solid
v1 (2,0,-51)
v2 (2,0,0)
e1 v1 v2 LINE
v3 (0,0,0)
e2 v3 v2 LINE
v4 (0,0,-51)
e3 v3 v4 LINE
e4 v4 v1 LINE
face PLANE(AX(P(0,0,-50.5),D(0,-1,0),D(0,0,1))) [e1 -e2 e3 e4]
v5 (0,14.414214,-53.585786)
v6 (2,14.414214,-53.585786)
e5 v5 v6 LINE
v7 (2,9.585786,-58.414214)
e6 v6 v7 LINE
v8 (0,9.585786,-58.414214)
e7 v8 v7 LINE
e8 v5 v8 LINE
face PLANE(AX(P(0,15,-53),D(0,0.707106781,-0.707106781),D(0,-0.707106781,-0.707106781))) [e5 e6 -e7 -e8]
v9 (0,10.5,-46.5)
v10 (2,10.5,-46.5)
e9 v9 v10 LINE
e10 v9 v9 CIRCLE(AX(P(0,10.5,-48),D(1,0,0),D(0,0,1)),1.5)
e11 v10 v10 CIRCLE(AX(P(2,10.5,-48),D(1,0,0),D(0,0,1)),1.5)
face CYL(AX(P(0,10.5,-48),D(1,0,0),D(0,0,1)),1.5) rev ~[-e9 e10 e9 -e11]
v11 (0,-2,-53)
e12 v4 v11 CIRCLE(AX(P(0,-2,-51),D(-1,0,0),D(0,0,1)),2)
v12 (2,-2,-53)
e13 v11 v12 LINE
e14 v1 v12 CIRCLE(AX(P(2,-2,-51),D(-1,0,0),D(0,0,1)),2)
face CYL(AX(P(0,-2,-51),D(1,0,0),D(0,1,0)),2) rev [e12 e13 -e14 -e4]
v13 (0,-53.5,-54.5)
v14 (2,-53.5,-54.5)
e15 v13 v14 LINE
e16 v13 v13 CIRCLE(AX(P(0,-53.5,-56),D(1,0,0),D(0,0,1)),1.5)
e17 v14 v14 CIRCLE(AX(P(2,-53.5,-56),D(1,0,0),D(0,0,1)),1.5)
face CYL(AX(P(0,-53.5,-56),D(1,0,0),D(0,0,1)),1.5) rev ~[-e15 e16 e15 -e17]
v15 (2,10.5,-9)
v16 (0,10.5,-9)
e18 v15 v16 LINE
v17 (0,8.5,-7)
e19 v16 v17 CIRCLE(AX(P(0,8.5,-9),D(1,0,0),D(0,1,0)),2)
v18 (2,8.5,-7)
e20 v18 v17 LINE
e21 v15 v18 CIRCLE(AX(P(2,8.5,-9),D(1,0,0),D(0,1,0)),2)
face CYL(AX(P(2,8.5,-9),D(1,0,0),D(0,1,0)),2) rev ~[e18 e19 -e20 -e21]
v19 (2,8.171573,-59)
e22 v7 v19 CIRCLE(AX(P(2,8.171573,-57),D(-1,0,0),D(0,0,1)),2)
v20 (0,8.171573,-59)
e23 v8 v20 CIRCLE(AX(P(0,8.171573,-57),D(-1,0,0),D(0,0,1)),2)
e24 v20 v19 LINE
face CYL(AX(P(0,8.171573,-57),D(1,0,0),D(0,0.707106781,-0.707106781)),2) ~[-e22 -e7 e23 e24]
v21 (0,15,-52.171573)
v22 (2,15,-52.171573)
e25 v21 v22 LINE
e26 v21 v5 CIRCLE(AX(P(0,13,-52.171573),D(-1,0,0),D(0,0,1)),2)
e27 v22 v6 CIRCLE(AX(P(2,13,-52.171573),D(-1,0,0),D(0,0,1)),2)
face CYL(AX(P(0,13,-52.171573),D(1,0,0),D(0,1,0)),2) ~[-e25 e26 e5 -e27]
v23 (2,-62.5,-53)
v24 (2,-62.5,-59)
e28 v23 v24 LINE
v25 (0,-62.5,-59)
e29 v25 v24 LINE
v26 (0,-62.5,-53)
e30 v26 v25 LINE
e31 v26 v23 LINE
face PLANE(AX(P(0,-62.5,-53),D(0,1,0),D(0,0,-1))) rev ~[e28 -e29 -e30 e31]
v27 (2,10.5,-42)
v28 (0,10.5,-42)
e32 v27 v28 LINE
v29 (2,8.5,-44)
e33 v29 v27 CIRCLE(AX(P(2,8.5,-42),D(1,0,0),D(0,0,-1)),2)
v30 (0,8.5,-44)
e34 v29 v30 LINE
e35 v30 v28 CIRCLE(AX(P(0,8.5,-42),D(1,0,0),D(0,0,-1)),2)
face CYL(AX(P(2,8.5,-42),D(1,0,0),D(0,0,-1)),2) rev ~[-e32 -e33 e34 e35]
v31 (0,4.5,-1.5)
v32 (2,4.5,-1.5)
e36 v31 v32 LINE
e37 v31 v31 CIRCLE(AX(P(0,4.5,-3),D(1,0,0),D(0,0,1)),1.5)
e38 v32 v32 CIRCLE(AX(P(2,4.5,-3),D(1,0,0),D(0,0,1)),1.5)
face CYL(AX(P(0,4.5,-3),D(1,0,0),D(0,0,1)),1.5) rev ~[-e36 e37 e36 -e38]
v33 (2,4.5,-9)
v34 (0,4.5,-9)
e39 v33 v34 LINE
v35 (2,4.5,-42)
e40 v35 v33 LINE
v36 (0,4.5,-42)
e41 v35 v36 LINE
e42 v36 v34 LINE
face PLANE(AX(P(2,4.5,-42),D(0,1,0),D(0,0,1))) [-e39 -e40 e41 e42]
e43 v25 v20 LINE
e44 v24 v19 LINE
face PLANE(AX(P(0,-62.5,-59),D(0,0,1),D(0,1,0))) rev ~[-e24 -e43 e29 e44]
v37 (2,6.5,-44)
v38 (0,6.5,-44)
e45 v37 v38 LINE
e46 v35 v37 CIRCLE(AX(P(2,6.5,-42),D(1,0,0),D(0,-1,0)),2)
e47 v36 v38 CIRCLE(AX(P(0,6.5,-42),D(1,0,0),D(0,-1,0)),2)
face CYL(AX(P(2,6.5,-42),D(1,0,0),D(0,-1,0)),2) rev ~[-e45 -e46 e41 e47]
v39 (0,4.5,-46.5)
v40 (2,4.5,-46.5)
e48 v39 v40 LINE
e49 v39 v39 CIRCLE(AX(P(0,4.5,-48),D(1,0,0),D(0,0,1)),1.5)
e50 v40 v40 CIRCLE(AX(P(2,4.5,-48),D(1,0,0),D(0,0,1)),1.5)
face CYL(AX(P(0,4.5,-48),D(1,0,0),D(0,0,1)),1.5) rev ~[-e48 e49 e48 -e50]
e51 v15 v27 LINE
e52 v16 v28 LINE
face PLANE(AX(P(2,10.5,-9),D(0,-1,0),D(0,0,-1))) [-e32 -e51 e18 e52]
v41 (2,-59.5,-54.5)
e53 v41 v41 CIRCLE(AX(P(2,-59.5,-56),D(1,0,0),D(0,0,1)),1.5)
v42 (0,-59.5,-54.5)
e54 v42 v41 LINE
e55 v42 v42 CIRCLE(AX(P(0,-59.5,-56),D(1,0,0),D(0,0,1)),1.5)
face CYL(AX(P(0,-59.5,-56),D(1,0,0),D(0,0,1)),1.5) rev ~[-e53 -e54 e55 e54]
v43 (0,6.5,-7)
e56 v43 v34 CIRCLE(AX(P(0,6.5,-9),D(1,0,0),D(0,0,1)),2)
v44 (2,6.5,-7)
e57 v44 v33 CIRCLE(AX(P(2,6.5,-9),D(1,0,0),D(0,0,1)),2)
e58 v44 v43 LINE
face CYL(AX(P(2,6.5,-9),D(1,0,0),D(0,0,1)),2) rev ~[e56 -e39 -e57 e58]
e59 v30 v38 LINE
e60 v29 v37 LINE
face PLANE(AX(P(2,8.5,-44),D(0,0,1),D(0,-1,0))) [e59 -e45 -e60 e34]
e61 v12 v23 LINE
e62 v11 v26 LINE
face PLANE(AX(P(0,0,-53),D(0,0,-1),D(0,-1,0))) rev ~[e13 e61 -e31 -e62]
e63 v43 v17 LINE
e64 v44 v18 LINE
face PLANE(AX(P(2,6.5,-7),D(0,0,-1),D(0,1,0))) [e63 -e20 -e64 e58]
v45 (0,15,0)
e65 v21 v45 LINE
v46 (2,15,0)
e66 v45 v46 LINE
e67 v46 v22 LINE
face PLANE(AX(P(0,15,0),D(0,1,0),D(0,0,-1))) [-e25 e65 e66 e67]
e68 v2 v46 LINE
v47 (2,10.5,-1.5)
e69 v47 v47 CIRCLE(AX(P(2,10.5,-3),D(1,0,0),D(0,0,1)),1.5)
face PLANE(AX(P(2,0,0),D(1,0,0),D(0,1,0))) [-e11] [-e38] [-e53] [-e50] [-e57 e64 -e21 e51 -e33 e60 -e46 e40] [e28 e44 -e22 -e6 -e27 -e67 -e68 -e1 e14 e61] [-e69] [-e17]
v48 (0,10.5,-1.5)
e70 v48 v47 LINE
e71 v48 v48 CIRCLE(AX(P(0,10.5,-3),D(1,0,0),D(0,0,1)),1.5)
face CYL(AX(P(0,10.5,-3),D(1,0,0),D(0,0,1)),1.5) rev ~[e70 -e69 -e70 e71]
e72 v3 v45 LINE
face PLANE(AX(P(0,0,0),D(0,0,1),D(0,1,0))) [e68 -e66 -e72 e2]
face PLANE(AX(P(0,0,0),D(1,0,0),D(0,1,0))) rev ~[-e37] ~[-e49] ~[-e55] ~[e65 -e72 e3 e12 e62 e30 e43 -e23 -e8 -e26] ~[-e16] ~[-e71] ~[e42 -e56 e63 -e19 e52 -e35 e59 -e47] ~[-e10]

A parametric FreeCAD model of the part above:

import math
import FreeCAD as App
import Part
import Sketcher

V = App.Vector
Q = App.Units.Quantity


def edges_at(feature, points):
    """Names of the edges that pass closest to the given points."""
    edges = feature.Shape.Edges
    near = lambda p: min(range(len(edges)), key=lambda i: edges[i].distToShape(Part.Vertex(*p))[0])
    return sorted({f"Edge{near(p) + 1}" for p in points})

doc = App.newDocument("Part")
body = doc.addObject("PartDesign::Body", "Body")

# Sketch on YZ plane
sketch1 = body.newObject("Sketcher::SketchObject", "Sketch")
sketch1.AttachmentSupport = (doc.getObject("YZ_Plane"), [""])
sketch1.MapMode = "FlatFace"
sketch1.addGeometry([
    Part.LineSegment(V(15, 0, 0), V(0, 0, 0)),  # 0
    Part.LineSegment(V(0, 0, 0), V(0, -53, 0)),  # 1
    Part.LineSegment(V(0, -53, 0), V(-62, -53, 0)),  # 2
    Part.LineSegment(V(-62, -53, 0), V(-62, -59, 0)),  # 3
    Part.LineSegment(V(-62, -59, 0), V(9, -59, 0)),  # 4
    Part.LineSegment(V(9, -59, 0), V(15, -53, 0)),  # 5
    Part.LineSegment(V(15, -53, 0), V(15, 0, 0)),  # 6
], False)
sketch1.addConstraint([
    Sketcher.Constraint("Coincident", 0, 2, 1, 1),
    Sketcher.Constraint("Coincident", 1, 2, 2, 1),
    Sketcher.Constraint("Coincident", 2, 2, 3, 1),
    Sketcher.Constraint("Coincident", 3, 2, 4, 1),
    Sketcher.Constraint("Coincident", 4, 2, 5, 1),
    Sketcher.Constraint("Coincident", 5, 2, 6, 1),
    Sketcher.Constraint("Coincident", 6, 2, 0, 1),
    Sketcher.Constraint("Horizontal", 0),
    Sketcher.Constraint("Vertical", 1),
    Sketcher.Constraint("Horizontal", 2),
    Sketcher.Constraint("Vertical", 3),
    Sketcher.Constraint("Horizontal", 4),
    Sketcher.Constraint("Vertical", 6),
    Sketcher.Constraint("Coincident", 0, 2, -1, 1),
    Sketcher.Constraint("Horizontal", 2, 2, 5, 2),
    Sketcher.Constraint("DistanceY", 1, 2, 1, 1, Q("53 mm")),
    Sketcher.Constraint("DistanceY", 3, 2, 3, 1, Q("6 mm")),
    Sketcher.Constraint("DistanceX", 4, 2, 5, 2, Q("6 mm")),
    Sketcher.Constraint("DistanceX", 0, 2, 0, 1, Q("15 mm")),
    Sketcher.Constraint("DistanceX", 2, 2, 2, 1, Q("62.5 mm")),
])
pad1 = body.newObject("PartDesign::Pad", "Pad")
pad1.Profile = sketch1
pad1.Length = 2

# Sketch on YZ plane
sketch2 = body.newObject("Sketcher::SketchObject", "Sketch001")
sketch2.AttachmentSupport = (doc.getObject("YZ_Plane"), [""])
sketch2.MapMode = "FlatFace"
sketch2.addGeometry([
    Part.Circle(V(10.5, -3, 0), V(0, 0, 1), 1.5),  # 0
    Part.Circle(V(4.5, -3, 0), V(0, 0, 1), 1.5),  # 1
    Part.Circle(V(10.5, -48, 0), V(0, 0, 1), 1.5),  # 2
    Part.Circle(V(4.5, -48, 0), V(0, 0, 1), 1.5),  # 3
    Part.Circle(V(-53.5, -56, 0), V(0, 0, 1), 1.5),  # 4
    Part.Circle(V(-59.5, -56, 0), V(0, 0, 1), 1.5),  # 5
], False)
sketch2.addConstraint([
    Sketcher.Constraint("Equal", 0, 1),
    Sketcher.Constraint("Equal", 1, 2),
    Sketcher.Constraint("Equal", 2, 3),
    Sketcher.Constraint("Equal", 3, 4),
    Sketcher.Constraint("Equal", 4, 5),
    Sketcher.Constraint("Horizontal", 0, 3, 1, 3),
    Sketcher.Constraint("Horizontal", 2, 3, 3, 3),
    Sketcher.Constraint("Horizontal", 4, 3, 5, 3),
    Sketcher.Constraint("Vertical", 0, 3, 2, 3),
    Sketcher.Constraint("Vertical", 1, 3, 3, 3),
    Sketcher.Constraint("Diameter", 0, Q("3 mm")),
    Sketcher.Constraint("DistanceY", 0, 3, -1, 1, Q("3 mm")),
    Sketcher.Constraint("DistanceY", 2, 3, -1, 1, Q("48 mm")),
    Sketcher.Constraint("DistanceY", 4, 3, -1, 1, Q("56 mm")),
    Sketcher.Constraint("DistanceX", 1, 3, 0, 3, Q("6 mm")),
    Sketcher.Constraint("DistanceX", 4, 3, 3, 3, Q("58 mm")),
    Sketcher.Constraint("DistanceX", 5, 3, 4, 3, Q("6 mm")),
    Sketcher.Constraint("DistanceX", -1, 1, 0, 3, Q("10.5 mm")),
])
doc.recompute()
hole = body.newObject("PartDesign::Hole", "Hole")
hole.Profile = sketch2
hole.ThreadType = "None"
hole.Diameter = 3
hole.DepthType = "Dimension"
hole.Depth = 8.8
hole.DrillPoint = "Flat"
hole.Reversed = True

# Sketch on YZ plane
sketch3 = body.newObject("Sketcher::SketchObject", "Sketch002")
sketch3.AttachmentSupport = (doc.getObject("YZ_Plane"), [""])
sketch3.MapMode = "FlatFace"
sketch3.AttachmentOffset = App.Placement(V(0, 0, 2), App.Rotation())
sketch3.addGeometry([
    Part.LineSegment(V(10.5, -42, 0), V(10.5, -9, 0)),  # 0
    Part.ArcOfCircle(Part.Circle(V(8.5, -9, 0), V(0, 0, 1), 2), math.radians(0), math.radians(90)),  # 1
    Part.LineSegment(V(8.5, -7, 0), V(6.5, -7, 0)),  # 2
    Part.ArcOfCircle(Part.Circle(V(6.5, -9, 0), V(0, 0, 1), 2), math.radians(90), math.radians(180)),  # 3
    Part.LineSegment(V(4.5, -9, 0), V(4.5, -42, 0)),  # 4
    Part.ArcOfCircle(Part.Circle(V(6.5, -42, 0), V(0, 0, 1), 2), math.radians(180), math.radians(270)),  # 5
    Part.LineSegment(V(6.5, -44, 0), V(8.5, -44, 0)),  # 6
    Part.ArcOfCircle(Part.Circle(V(8.5, -42, 0), V(0, 0, 1), 2), math.radians(-90), math.radians(0)),  # 7
], False)
sketch3.addConstraint([
    Sketcher.Constraint("Tangent", 0, 2, 1, 1),
    Sketcher.Constraint("Tangent", 1, 2, 2, 1),
    Sketcher.Constraint("Tangent", 2, 2, 3, 1),
    Sketcher.Constraint("Tangent", 3, 2, 4, 1),
    Sketcher.Constraint("Tangent", 4, 2, 5, 1),
    Sketcher.Constraint("Tangent", 5, 2, 6, 1),
    Sketcher.Constraint("Tangent", 6, 2, 7, 1),
    Sketcher.Constraint("Tangent", 7, 2, 0, 1),
    Sketcher.Constraint("Vertical", 0),
    Sketcher.Constraint("Horizontal", 2),
    Sketcher.Constraint("Vertical", 4),
    Sketcher.Constraint("Horizontal", 6),
    Sketcher.Constraint("Equal", 1, 3),
    Sketcher.Constraint("Equal", 3, 5),
    Sketcher.Constraint("Equal", 5, 7),
    Sketcher.Constraint("Radius", 1, Q("2 mm")),
    Sketcher.Constraint("DistanceX", 2, 2, 2, 1, Q("2 mm")),
    Sketcher.Constraint("DistanceY", 0, 1, 0, 2, Q("33 mm")),
    Sketcher.Constraint("DistanceY", 1, 3, -1, 1, Q("9 mm")),
    Sketcher.Constraint("DistanceX", -1, 1, 1, 3, Q("8.5 mm")),
])
pocket1 = body.newObject("PartDesign::Pocket", "Pocket")
pocket1.Profile = sketch3
pocket1.Length = 2
doc.recompute()

fillet = body.newObject("PartDesign::Fillet", "Fillet")
fillet.Base = (pocket1, edges_at(pocket1, [(1, 15, -53)]))
fillet.Radius = 2
doc.recompute()

fillet2 = body.newObject("PartDesign::Fillet", "Fillet001")
fillet2.Base = (fillet, edges_at(fillet, [(1, 9, -59), (1, 0, -53)]))
fillet2.Radius = 2

doc.recompute()
